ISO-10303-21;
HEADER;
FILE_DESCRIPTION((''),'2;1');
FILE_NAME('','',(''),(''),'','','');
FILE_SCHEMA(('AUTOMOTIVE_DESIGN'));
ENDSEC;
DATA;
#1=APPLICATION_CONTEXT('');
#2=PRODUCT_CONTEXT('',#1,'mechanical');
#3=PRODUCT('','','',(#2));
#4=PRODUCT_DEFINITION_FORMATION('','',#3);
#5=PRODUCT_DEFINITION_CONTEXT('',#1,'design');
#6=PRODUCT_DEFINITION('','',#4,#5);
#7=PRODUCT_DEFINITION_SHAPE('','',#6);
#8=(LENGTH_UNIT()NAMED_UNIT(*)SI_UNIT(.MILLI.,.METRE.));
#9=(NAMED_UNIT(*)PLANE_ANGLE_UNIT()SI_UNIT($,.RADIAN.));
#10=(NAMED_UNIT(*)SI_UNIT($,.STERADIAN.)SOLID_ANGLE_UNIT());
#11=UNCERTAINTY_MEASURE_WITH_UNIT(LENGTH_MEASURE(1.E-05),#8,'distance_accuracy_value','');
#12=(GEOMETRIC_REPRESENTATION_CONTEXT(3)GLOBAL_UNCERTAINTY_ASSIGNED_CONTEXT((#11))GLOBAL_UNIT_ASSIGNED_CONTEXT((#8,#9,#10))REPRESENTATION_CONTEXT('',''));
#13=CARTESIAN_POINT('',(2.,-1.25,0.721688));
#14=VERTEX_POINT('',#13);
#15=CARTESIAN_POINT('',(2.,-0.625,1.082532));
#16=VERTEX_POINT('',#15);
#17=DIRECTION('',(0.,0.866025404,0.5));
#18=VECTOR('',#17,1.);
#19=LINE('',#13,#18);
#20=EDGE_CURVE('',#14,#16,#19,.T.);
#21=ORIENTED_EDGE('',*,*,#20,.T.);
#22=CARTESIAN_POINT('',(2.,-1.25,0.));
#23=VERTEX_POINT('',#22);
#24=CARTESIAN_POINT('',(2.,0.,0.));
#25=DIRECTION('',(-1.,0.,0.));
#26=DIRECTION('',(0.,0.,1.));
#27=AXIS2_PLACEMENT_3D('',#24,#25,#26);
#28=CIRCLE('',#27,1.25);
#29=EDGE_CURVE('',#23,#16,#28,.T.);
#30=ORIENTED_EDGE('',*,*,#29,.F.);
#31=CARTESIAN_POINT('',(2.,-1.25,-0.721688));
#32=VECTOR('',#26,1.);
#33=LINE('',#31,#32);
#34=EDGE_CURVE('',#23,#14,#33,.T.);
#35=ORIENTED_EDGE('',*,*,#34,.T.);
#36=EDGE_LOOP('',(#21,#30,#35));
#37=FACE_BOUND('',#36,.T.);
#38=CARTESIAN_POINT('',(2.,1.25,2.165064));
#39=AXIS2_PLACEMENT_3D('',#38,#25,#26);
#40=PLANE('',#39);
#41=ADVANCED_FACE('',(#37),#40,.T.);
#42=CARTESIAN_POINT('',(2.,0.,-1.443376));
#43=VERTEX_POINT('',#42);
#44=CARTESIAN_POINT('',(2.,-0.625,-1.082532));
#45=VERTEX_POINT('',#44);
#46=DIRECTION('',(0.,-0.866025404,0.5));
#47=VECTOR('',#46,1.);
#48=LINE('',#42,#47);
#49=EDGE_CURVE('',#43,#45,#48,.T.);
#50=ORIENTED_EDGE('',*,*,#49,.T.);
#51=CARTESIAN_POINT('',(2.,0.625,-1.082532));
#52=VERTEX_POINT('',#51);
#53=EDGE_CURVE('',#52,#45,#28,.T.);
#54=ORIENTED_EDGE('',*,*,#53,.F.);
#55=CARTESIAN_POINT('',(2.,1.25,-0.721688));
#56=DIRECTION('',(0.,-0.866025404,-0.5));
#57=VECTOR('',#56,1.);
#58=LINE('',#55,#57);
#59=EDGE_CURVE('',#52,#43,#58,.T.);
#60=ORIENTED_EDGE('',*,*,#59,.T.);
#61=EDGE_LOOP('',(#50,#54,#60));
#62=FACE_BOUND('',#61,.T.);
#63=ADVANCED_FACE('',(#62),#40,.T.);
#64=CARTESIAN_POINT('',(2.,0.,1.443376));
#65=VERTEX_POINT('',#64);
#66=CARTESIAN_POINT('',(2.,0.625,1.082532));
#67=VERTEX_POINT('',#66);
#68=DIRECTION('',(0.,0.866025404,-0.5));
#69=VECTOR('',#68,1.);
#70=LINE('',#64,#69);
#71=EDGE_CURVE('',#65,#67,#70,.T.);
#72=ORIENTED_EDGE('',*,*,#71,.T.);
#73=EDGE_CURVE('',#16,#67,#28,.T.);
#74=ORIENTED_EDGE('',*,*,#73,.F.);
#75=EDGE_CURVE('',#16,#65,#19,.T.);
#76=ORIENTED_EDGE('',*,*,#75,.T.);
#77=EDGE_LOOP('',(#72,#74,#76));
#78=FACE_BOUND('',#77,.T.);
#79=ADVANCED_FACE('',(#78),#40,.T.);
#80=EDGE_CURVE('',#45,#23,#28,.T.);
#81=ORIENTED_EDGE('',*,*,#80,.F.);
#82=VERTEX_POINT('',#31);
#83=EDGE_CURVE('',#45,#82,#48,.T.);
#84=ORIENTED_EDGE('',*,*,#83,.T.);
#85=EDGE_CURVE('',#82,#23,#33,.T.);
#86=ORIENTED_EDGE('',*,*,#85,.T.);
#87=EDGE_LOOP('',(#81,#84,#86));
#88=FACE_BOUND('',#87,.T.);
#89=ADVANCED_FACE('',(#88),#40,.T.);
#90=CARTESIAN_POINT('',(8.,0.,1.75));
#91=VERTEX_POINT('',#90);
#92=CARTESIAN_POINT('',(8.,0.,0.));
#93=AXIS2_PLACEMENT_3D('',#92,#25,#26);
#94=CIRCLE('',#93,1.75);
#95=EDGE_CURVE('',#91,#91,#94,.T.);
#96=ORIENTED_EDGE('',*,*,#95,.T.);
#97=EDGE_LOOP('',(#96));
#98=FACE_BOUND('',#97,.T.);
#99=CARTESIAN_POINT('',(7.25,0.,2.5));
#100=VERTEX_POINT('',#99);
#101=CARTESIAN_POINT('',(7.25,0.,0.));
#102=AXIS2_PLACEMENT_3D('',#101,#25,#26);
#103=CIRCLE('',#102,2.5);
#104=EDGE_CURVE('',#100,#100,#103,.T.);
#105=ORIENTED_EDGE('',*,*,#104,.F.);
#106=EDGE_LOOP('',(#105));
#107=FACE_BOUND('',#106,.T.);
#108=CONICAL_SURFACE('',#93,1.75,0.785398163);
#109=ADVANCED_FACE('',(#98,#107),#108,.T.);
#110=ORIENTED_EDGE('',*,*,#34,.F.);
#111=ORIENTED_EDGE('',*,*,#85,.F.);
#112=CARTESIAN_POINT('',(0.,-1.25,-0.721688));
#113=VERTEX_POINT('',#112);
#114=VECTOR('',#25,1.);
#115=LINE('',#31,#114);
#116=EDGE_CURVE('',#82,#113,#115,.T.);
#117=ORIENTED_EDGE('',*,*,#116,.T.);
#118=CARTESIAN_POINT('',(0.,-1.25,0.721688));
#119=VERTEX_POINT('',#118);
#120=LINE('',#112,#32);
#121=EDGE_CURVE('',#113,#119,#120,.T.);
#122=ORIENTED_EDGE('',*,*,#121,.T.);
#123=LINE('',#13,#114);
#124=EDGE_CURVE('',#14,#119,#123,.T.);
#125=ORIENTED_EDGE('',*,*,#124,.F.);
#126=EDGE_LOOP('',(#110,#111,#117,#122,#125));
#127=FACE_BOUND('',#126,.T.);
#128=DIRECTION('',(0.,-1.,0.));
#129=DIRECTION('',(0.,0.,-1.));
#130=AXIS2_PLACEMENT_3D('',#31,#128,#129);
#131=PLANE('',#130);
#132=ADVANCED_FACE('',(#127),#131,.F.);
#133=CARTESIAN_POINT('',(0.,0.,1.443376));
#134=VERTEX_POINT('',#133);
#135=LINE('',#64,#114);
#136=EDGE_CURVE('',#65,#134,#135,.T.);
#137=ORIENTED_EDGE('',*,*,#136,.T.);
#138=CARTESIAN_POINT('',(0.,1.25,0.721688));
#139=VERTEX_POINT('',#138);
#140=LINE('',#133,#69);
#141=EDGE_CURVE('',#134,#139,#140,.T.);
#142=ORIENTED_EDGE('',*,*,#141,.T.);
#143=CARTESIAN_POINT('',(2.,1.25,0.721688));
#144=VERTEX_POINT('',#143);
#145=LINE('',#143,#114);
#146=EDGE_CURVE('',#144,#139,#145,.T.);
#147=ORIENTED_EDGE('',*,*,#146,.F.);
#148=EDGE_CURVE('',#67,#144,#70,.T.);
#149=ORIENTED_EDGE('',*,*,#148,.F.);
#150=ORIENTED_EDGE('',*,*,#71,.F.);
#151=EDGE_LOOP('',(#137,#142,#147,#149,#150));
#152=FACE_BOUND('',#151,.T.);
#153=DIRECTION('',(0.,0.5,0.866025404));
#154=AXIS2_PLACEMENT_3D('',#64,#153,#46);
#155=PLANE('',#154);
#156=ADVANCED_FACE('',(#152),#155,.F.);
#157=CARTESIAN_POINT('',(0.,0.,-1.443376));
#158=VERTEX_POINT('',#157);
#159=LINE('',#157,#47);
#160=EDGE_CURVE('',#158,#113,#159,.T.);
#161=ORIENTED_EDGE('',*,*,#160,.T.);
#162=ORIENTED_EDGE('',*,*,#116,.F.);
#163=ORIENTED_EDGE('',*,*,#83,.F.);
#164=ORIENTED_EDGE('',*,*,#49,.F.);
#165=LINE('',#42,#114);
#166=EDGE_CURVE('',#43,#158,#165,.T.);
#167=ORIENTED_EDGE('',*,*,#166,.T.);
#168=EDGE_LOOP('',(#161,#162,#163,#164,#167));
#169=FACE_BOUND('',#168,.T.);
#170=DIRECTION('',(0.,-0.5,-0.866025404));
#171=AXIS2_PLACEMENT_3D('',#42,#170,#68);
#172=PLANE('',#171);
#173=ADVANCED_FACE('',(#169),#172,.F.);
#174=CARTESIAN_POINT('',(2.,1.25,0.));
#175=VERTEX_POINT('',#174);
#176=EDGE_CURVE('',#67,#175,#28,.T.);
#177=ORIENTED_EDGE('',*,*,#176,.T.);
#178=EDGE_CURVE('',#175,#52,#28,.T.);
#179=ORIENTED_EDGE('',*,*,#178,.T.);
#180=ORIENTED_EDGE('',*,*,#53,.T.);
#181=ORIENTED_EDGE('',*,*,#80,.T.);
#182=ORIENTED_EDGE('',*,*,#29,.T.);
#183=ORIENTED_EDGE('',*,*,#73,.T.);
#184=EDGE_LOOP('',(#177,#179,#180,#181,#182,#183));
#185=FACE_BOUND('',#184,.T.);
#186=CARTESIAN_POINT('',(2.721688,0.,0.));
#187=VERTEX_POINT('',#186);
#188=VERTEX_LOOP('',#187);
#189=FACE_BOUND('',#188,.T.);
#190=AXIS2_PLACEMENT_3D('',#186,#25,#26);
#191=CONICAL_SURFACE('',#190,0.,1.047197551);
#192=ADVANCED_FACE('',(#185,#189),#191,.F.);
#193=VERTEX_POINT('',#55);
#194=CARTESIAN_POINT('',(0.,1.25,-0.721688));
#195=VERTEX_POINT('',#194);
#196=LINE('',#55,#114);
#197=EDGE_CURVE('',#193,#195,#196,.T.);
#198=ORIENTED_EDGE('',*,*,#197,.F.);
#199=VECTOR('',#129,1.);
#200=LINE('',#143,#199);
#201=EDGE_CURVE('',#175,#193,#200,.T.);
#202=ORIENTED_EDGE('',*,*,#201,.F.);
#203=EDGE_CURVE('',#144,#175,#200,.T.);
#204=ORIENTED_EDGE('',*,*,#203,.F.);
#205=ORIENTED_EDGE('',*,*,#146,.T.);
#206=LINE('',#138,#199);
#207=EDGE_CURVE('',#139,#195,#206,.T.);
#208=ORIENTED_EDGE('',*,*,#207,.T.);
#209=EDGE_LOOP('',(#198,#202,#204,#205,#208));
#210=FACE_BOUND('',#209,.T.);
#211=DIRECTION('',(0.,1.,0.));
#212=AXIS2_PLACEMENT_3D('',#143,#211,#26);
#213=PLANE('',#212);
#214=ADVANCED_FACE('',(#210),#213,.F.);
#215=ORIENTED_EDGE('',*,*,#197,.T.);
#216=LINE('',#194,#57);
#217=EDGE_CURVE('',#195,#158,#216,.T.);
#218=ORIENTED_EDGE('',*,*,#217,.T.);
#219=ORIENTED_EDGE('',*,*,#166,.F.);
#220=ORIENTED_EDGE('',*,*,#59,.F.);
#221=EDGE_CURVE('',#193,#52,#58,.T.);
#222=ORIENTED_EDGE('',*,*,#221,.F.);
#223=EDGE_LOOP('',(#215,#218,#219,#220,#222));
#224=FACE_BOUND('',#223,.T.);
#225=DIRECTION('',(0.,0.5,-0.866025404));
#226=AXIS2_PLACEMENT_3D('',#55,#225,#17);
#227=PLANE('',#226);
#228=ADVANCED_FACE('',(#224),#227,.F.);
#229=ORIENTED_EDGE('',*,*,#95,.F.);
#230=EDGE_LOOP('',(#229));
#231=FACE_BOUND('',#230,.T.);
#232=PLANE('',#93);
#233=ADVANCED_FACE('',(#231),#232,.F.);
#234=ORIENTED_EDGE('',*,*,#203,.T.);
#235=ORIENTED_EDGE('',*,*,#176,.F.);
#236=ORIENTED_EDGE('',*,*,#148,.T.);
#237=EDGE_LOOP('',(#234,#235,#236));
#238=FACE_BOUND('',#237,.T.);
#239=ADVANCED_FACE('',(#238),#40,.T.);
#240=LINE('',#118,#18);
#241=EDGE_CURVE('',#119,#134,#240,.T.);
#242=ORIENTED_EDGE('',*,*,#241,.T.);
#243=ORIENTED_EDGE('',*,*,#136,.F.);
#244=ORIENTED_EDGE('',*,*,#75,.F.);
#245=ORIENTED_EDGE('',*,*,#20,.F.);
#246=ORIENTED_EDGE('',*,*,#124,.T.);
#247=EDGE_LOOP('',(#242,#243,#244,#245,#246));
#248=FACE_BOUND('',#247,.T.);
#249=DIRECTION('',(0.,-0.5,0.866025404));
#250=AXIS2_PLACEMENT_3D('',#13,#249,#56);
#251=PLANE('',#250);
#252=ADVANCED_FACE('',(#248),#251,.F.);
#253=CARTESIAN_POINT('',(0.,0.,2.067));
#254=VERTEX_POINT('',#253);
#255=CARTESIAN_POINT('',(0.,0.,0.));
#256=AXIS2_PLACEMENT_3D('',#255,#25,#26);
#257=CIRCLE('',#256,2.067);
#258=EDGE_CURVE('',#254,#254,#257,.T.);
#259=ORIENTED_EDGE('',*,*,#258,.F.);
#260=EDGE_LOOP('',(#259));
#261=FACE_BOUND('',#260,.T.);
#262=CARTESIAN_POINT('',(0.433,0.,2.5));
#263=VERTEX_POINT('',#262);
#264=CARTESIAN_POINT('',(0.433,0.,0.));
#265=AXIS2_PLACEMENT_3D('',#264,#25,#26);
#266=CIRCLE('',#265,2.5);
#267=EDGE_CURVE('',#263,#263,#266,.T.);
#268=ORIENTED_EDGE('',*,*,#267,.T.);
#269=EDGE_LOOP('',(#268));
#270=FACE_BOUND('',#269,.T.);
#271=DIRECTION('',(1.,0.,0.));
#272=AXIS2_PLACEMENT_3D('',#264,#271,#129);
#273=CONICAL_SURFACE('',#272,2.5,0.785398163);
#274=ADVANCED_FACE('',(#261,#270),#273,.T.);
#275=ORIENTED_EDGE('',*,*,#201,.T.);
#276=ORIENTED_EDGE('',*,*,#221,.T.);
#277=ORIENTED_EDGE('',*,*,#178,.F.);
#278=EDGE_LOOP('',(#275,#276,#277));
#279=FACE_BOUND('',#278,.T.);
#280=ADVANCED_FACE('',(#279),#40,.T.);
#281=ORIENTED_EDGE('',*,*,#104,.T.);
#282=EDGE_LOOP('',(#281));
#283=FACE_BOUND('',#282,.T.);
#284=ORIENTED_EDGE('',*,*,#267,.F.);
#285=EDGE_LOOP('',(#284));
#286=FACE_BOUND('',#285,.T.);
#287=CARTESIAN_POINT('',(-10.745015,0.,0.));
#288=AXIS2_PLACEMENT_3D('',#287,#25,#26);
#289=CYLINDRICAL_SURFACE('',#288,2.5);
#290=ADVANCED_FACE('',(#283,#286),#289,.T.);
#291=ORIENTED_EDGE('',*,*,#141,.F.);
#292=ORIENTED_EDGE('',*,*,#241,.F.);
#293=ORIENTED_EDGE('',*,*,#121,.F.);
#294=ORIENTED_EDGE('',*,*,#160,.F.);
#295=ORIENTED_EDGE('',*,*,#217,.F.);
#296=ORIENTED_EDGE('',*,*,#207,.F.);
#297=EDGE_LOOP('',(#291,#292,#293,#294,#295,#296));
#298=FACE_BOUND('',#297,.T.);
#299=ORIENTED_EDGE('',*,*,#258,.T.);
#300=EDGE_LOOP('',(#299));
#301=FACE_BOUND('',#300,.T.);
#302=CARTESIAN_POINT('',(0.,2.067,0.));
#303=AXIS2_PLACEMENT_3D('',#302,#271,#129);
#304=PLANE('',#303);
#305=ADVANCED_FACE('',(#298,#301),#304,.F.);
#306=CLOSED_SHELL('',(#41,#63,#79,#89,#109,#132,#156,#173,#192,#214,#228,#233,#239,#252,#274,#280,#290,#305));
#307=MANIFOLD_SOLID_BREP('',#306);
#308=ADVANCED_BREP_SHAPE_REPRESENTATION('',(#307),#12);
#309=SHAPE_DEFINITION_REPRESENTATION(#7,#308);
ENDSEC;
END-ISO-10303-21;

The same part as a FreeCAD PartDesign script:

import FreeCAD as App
import Part
import Sketcher
Q = App.Units.Quantity

doc = App.newDocument("Part")
params = doc.addObject("Spreadsheet::Sheet", "Params")
for row, (alias, value) in enumerate([
    ("sketch1_width", "8 mm"),
    ("sketch1_height", "1.75 mm"),
    ("revolution_angle", "360 deg"),
    ("pocket1_length", "2 mm"),
    ("sketch3_height", "1.25 mm"),
    ("groove_angle", "360 deg"),
], start=1):
    params.set(f"A{row}", alias)
    params.set(f"B{row}", "=" + value)
    params.setAlias(f"B{row}", alias)

body = doc.addObject("PartDesign::Body", "Body")

sketch1 = body.newObject("Sketcher::SketchObject", "Sketch")
sketch1.AttachmentSupport = (doc.getObject("XY_Plane"), [""])
sketch1.MapMode = "FlatFace"
sketch1.addGeometry([
    Part.LineSegment(App.Vector(0, 0, 0), App.Vector(8, 0, 0)),
    Part.LineSegment(App.Vector(8, 0, 0), App.Vector(8, 1.8, 0)),
    Part.LineSegment(App.Vector(8, 1.8, 0), App.Vector(7.2, 2.5, 0)),
    Part.LineSegment(App.Vector(7.2, 2.5, 0), App.Vector(0.4, 2.5, 0)),
    Part.LineSegment(App.Vector(0.4, 2.5, 0), App.Vector(0, 2.1, 0)),
    Part.LineSegment(App.Vector(0, 2.1, 0), App.Vector(0, 0, 0)),
], False)
sketch1.addConstraint([
    Sketcher.Constraint("Coincident", 0, 2, 1, 1),
    Sketcher.Constraint("Coincident", 1, 2, 2, 1),
    Sketcher.Constraint("Coincident", 2, 2, 3, 1),
    Sketcher.Constraint("Coincident", 3, 2, 4, 1),
    Sketcher.Constraint("Coincident", 4, 2, 5, 1),
    Sketcher.Constraint("Coincident", 5, 2, 0, 1),
    Sketcher.Constraint("Horizontal", 0),
    Sketcher.Constraint("Vertical", 1),
    Sketcher.Constraint("Horizontal", 3),
    Sketcher.Constraint("Vertical", 5),
    Sketcher.Constraint("Coincident", 5, 2, -1, 1),
    Sketcher.Constraint("Perpendicular", 2, 4),
    Sketcher.Constraint("DistanceX", 0, 1, 0, 2, 8.0),
    Sketcher.Constraint("Angle", 2, Q("135 deg")),
    Sketcher.Constraint("DistanceY", 1, 1, 1, 2, 1.75),
    Sketcher.Constraint("DistanceY", -1, 1, 2, 2, 2.5),
    Sketcher.Constraint("DistanceX", 3, 2, 3, 1, 6.817),
])
sketch1.setExpression("Constraints[12]", "Params.sketch1_width")
sketch1.setExpression("Constraints[14]", "Params.sketch1_height")
revolution = body.newObject("PartDesign::Revolution", "Revolution")
revolution.Profile = sketch1
revolution.ReferenceAxis = (sketch1, ["H_Axis"])
revolution.setExpression("Angle", "Params.revolution_angle")

sketch2 = body.newObject("Sketcher::SketchObject", "Sketch001")
sketch2.AttachmentSupport = (doc.getObject("YZ_Plane"), [""])
sketch2.MapMode = "FlatFace"
sketch2.addGeometry([
    Part.LineSegment(App.Vector(0, 1.4, 0), App.Vector(1.2, 0.7, 0)),
    Part.LineSegment(App.Vector(1.2, 0.7, 0), App.Vector(1.2, -0.7, 0)),
    Part.LineSegment(App.Vector(1.2, -0.7, 0), App.Vector(0, -1.4, 0)),
    Part.LineSegment(App.Vector(0, -1.4, 0), App.Vector(-1.2, -0.7, 0)),
    Part.LineSegment(App.Vector(-1.2, -0.7, 0), App.Vector(-1.2, 0.7, 0)),
    Part.LineSegment(App.Vector(-1.2, 0.7, 0), App.Vector(0, 1.4, 0)),
], False)
sketch2.addConstraint([
    Sketcher.Constraint("Coincident", 0, 2, 1, 1),
    Sketcher.Constraint("Coincident", 1, 2, 2, 1),
    Sketcher.Constraint("Coincident", 2, 2, 3, 1),
    Sketcher.Constraint("Coincident", 3, 2, 4, 1),
    Sketcher.Constraint("Coincident", 4, 2, 5, 1),
    Sketcher.Constraint("Coincident", 5, 2, 0, 1),
    Sketcher.Constraint("Vertical", 1),
    Sketcher.Constraint("Vertical", 4),
    Sketcher.Constraint("Symmetric", 0, 2, 3, 2, -1, 1),
    Sketcher.Constraint("Symmetric", 2, 2, 5, 2, -1, 1),
    Sketcher.Constraint("PointOnObject", 2, 2, -2),
    Sketcher.Constraint("Parallel", 2, 5),
    Sketcher.Constraint("Horizontal", 1, 2, 3, 2),
    Sketcher.Constraint("Angle", 0, Q("-30 deg")),
    Sketcher.Constraint("DistanceX", 3, 2, 1, 2, 2.5),
    Sketcher.Constraint("DistanceY", 1, 2, 1, 1, 1.443376),
])
pocket1 = body.newObject("PartDesign::Pocket", "Pocket")
pocket1.Profile = sketch2
pocket1.setExpression("Length", "Params.pocket1_length")
pocket1.Reversed = True

sketch3 = body.newObject("Sketcher::SketchObject", "Sketch002")
sketch3.AttachmentSupport = (doc.getObject("XY_Plane"), [""])
sketch3.MapMode = "FlatFace"
sketch3.addGeometry([
    Part.LineSegment(App.Vector(2.7, 0, 0), App.Vector(2, 1.2, 0)),
    Part.LineSegment(App.Vector(2, 1.2, 0), App.Vector(2, 0, 0)),
    Part.LineSegment(App.Vector(2, 0, 0), App.Vector(2.7, 0, 0)),
], False)
sketch3.addConstraint([
    Sketcher.Constraint("Coincident", 0, 2, 1, 1),
    Sketcher.Constraint("Coincident", 1, 2, 2, 1),
    Sketcher.Constraint("Coincident", 2, 2, 0, 1),
    Sketcher.Constraint("Vertical", 1),
    Sketcher.Constraint("Horizontal", 2),
    Sketcher.Constraint("PointOnObject", 1, 2, -1),
    Sketcher.Constraint("Angle", 0, Q("120 deg")),
    Sketcher.Constraint("DistanceX", -1, 1, 0, 2, 2.0),
    Sketcher.Constraint("DistanceY", 1, 2, 1, 1, 1.25),
])
sketch3.setExpression("Constraints[8]", "Params.sketch3_height")
groove = body.newObject("PartDesign::Groove", "Groove")
groove.Profile = sketch3
groove.ReferenceAxis = (sketch3, ["H_Axis"])
groove.setExpression("Angle", "Params.groove_angle")

doc.recompute()
